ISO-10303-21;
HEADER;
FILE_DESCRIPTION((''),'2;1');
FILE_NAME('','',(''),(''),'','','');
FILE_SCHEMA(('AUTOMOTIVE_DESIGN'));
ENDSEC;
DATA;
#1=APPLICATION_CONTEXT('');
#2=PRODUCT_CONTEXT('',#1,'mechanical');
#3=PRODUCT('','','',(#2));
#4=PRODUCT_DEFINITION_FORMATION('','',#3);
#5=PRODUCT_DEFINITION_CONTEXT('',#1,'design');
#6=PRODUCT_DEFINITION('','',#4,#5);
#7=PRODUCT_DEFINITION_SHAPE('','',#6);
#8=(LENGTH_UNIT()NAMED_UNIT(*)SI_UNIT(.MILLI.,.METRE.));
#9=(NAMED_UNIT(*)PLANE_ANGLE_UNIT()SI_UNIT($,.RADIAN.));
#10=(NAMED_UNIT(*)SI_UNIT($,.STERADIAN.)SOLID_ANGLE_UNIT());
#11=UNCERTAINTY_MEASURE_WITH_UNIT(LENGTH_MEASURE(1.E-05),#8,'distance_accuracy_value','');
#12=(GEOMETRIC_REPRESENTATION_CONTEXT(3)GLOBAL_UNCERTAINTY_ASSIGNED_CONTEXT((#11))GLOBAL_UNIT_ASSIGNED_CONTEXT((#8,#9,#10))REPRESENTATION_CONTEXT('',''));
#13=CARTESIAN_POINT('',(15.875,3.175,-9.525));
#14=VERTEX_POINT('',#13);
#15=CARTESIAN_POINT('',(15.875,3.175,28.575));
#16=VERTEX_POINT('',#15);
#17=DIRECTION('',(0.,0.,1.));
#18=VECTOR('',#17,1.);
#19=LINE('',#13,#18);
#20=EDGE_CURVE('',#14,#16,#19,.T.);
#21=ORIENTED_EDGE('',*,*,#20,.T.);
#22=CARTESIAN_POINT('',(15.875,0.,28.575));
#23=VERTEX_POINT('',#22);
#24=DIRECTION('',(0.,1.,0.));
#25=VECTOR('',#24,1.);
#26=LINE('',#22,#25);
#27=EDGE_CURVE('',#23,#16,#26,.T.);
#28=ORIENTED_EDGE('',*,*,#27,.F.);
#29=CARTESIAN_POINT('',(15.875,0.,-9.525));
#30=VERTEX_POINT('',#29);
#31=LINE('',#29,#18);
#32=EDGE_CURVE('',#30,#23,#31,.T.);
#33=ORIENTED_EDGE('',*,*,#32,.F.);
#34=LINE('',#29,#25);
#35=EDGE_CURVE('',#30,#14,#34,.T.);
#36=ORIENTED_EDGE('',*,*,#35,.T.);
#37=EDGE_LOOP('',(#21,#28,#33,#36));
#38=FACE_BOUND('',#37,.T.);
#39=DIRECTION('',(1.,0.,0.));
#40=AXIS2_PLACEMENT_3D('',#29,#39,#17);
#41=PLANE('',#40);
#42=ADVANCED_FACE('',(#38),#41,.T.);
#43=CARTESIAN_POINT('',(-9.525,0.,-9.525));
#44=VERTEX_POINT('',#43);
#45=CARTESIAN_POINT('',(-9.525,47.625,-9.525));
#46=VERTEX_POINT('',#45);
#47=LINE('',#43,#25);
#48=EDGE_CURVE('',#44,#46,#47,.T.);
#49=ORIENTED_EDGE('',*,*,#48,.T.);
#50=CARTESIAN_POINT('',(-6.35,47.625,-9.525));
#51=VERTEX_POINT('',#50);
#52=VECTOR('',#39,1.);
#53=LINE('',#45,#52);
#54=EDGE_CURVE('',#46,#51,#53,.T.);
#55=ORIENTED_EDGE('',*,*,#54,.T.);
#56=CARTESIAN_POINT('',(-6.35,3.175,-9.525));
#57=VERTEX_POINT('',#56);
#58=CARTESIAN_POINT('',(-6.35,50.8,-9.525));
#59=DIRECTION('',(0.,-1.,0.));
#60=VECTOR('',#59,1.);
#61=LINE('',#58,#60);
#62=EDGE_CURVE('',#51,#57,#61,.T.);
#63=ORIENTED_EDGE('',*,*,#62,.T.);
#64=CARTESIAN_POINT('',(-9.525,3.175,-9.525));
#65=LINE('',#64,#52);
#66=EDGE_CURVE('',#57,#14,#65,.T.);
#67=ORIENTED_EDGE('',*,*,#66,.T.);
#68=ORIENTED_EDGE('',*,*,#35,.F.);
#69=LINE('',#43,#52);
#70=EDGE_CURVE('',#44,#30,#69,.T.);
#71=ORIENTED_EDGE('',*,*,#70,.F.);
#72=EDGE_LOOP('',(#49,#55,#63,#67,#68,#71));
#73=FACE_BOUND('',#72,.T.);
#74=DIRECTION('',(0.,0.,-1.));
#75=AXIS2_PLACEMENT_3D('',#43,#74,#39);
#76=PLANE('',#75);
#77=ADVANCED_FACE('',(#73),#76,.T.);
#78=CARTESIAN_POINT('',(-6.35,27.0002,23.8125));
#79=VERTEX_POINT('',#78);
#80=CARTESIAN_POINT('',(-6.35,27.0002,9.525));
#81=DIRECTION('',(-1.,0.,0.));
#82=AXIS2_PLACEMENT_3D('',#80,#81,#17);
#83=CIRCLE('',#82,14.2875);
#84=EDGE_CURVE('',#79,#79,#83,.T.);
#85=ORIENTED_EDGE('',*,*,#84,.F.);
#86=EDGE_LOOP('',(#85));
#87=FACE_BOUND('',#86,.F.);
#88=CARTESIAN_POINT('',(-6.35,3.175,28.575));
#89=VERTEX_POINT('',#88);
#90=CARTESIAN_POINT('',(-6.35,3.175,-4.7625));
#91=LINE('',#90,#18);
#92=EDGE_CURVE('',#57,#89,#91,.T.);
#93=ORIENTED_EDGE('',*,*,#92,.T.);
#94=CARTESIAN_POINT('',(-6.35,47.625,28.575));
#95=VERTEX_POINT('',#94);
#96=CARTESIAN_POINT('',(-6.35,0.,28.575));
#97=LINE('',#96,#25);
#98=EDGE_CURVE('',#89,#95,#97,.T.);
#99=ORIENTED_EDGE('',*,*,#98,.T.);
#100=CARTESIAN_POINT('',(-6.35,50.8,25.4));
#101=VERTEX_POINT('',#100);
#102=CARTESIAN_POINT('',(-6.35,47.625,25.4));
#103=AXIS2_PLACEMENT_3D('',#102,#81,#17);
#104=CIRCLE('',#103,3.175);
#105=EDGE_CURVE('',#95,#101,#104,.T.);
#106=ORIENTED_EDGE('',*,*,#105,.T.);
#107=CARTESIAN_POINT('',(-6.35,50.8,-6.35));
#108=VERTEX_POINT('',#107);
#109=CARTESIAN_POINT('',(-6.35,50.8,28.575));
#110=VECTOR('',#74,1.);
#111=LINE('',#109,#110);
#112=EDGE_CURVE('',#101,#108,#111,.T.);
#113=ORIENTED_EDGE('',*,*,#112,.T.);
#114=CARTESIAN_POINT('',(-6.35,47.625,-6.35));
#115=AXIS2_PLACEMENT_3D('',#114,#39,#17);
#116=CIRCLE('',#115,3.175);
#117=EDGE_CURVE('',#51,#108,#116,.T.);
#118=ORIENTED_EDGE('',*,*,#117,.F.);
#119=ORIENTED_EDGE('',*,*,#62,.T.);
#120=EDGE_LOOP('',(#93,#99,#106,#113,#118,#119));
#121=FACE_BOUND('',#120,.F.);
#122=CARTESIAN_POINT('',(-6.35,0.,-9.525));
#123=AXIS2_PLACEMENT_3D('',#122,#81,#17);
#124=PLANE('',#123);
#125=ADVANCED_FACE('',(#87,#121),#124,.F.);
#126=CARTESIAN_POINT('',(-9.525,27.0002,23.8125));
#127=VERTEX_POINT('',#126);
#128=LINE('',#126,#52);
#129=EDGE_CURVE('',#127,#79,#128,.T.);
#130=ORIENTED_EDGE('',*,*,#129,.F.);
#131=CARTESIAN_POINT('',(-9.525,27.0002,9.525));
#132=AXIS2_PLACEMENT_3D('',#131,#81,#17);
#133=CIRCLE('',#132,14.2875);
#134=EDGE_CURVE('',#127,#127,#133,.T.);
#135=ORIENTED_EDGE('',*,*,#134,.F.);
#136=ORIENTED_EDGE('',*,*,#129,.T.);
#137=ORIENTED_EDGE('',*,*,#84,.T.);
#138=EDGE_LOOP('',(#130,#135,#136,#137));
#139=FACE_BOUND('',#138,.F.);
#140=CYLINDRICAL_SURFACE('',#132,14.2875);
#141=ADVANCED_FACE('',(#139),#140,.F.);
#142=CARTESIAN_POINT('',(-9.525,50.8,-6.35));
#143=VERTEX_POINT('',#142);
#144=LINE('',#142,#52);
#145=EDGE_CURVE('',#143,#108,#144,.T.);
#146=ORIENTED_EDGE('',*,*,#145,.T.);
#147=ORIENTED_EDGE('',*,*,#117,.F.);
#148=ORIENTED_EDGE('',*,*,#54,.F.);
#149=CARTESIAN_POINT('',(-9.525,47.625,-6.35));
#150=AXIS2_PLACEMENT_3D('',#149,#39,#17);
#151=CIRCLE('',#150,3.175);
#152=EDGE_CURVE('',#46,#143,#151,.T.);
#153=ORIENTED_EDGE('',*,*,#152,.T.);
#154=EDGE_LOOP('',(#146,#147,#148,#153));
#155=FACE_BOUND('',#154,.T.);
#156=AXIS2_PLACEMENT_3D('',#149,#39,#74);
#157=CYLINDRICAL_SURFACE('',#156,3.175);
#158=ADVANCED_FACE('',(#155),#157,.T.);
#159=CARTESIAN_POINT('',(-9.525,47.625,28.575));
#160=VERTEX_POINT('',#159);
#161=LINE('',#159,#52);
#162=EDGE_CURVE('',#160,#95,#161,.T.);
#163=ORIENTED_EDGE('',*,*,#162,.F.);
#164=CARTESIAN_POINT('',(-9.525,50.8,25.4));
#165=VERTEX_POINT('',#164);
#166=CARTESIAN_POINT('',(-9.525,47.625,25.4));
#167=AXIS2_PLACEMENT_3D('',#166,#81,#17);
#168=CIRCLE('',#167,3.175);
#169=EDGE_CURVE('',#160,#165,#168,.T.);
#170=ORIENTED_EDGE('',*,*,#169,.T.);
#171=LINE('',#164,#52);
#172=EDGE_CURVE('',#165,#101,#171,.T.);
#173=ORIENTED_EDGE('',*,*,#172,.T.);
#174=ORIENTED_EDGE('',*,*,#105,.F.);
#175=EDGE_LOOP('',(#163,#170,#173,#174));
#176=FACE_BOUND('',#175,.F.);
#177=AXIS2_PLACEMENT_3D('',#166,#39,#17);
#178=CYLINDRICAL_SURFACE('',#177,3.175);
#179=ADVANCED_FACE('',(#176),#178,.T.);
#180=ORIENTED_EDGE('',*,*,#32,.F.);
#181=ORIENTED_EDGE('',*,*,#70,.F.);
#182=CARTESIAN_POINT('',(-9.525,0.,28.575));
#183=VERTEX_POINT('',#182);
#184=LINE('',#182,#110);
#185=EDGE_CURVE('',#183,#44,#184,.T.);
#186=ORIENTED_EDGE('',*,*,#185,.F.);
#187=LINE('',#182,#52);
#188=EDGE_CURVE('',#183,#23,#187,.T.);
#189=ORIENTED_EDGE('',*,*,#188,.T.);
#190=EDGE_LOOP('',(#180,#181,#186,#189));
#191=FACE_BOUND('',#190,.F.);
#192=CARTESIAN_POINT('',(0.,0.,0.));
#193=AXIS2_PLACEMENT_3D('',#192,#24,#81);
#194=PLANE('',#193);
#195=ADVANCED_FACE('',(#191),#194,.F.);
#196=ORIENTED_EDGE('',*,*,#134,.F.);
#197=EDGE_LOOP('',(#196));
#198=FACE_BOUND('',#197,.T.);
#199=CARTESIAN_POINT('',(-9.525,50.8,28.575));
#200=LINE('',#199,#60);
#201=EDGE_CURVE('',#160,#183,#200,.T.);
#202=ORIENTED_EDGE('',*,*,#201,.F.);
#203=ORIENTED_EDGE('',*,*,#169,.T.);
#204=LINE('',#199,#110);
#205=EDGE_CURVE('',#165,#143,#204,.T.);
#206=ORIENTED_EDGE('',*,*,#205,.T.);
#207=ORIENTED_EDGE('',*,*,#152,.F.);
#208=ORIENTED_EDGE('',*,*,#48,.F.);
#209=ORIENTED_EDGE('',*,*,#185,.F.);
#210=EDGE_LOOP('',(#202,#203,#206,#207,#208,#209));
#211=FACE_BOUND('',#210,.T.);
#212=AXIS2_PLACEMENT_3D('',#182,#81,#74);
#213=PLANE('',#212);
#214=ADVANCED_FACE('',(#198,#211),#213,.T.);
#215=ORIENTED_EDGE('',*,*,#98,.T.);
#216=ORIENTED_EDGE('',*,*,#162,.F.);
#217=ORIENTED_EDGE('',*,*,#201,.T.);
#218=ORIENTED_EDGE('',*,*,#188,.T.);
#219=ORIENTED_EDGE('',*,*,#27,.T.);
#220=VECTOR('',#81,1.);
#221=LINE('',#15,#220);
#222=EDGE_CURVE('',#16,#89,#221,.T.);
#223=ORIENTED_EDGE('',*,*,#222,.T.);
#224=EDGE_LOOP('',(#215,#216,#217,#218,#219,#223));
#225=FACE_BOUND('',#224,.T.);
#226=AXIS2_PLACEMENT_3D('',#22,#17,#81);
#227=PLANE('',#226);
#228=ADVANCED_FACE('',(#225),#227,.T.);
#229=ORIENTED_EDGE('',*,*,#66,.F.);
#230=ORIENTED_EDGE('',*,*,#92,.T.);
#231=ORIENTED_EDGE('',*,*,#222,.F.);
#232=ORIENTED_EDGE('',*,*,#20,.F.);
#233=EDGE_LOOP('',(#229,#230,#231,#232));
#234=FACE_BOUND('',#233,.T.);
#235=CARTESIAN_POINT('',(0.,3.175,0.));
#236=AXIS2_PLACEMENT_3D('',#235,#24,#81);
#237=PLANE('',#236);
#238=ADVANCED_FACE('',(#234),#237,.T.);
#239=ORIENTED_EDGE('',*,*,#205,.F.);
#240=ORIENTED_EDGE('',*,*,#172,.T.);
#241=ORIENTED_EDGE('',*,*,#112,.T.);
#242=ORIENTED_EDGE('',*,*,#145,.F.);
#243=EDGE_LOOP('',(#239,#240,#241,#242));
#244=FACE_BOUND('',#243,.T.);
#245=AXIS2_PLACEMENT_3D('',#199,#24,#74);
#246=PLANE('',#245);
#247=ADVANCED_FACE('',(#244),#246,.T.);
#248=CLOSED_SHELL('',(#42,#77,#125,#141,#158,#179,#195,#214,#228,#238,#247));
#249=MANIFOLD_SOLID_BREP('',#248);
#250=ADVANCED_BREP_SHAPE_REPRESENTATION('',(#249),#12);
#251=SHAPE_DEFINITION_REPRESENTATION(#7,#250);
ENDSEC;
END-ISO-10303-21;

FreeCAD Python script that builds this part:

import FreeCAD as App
import Part
import Sketcher
Q = App.Units.Quantity


def edges_at(feature, points):
    """Names of the edges that pass closest to the given points."""
    edges = feature.Shape.Edges
    near = lambda p: min(range(len(edges)), key=lambda i: edges[i].distToShape(Part.Vertex(*p))[0])
    return sorted({f"Edge{near(p) + 1}" for p in points})


def add_polygon(sketch, points):
    """Adds a closed chain of lines whose ends are joined by coincident constraints."""
    first, n = sketch.GeometryCount, len(points)
    for a, b in zip(points, points[1:] + points[:1]):
        sketch.addGeometry(Part.LineSegment(App.Vector(*a, 0), App.Vector(*b, 0)), False)
    for i in range(n):
        sketch.addConstraint(Sketcher.Constraint("Coincident", first + i, 2, first + (i + 1) % n, 1))

doc = App.newDocument("Part")
body = doc.addObject("PartDesign::Body", "Body")

sketch1 = body.newObject("Sketcher::SketchObject", "Sketch")
sketch1.AttachmentSupport = (doc.getObject("XZ_Plane"), [""])
sketch1.MapMode = "FlatFace"
add_polygon(sketch1, [(-10, 29), (16, 29), (16, -10), (-10, -10)])
sketch1.addConstraint(Sketcher.Constraint("Horizontal", 0))
sketch1.addConstraint(Sketcher.Constraint("Vertical", 1))
sketch1.addConstraint(Sketcher.Constraint("Horizontal", 2))
sketch1.addConstraint(Sketcher.Constraint("Vertical", 3))
sketch1.addConstraint(Sketcher.Constraint("DistanceX", 0, 1, 0, 2, Q("1 in")))
sketch1.addConstraint(Sketcher.Constraint("DistanceY", 1, 2, 1, 1, Q("1.5 in")))
sketch1.addConstraint(Sketcher.Constraint("DistanceY", 1, 2, -1, 1, Q("0.375 in")))
sketch1.addConstraint(Sketcher.Constraint("DistanceX", 2, 2, -1, 1, Q("0.375 in")))
pad1 = body.newObject("PartDesign::Pad", "Pad")
pad1.Profile = sketch1
pad1.Length = Q("0.125 in")
pad1.Reversed = True

sketch2 = body.newObject("Sketcher::SketchObject", "Sketch001")
sketch2.AttachmentSupport = (doc.getObject("YZ_Plane"), [""])
sketch2.MapMode = "FlatFace"
sketch2.AttachmentOffset = App.Placement(App.Vector(0, 0, -0.375 * 25.4), App.Rotation())
add_polygon(sketch2, [(0, -10), (0, 29), (51, 29), (51, -10)])
sketch2.addGeometry(Part.Circle(App.Vector(27, 10, 0), App.Vector(0, 0, 1), 14), False)
sketch2.addConstraint(Sketcher.Constraint("Vertical", 0))
sketch2.addConstraint(Sketcher.Constraint("Horizontal", 1))
sketch2.addConstraint(Sketcher.Constraint("Vertical", 2))
sketch2.addConstraint(Sketcher.Constraint("Horizontal", 3))
sketch2.addConstraint(Sketcher.Constraint("PointOnObject", 0, 2, -2))
sketch2.addConstraint(Sketcher.Constraint("DistanceX", 1, 1, 1, 2, Q("2 in")))
sketch2.addConstraint(Sketcher.Constraint("Diameter", 4, Q("1.125 in")))
sketch2.addConstraint(Sketcher.Constraint("DistanceY", 0, 1, 0, 2, Q("1.5 in")))
sketch2.addConstraint(Sketcher.Constraint("DistanceY", 4, 3, 0, 2, Q("0.75 in")))
sketch2.addConstraint(Sketcher.Constraint("DistanceX", -1, 1, 4, 3, Q("1.063 in")))
sketch2.addConstraint(Sketcher.Constraint("DistanceY", -1, 1, 0, 2, Q("1.125 in")))
pad2 = body.newObject("PartDesign::Pad", "Pad001")
pad2.Profile = sketch2
pad2.Length = Q("0.125 in")
doc.recompute()

fillet = body.newObject("PartDesign::Fillet", "Fillet")
fillet.Base = (pad2, edges_at(pad2, [(-7.938, 50.8, 28.575), (-7.938, 50.8, -9.525)]))
fillet.Radius = Q("0.125 in")

doc.recompute()
